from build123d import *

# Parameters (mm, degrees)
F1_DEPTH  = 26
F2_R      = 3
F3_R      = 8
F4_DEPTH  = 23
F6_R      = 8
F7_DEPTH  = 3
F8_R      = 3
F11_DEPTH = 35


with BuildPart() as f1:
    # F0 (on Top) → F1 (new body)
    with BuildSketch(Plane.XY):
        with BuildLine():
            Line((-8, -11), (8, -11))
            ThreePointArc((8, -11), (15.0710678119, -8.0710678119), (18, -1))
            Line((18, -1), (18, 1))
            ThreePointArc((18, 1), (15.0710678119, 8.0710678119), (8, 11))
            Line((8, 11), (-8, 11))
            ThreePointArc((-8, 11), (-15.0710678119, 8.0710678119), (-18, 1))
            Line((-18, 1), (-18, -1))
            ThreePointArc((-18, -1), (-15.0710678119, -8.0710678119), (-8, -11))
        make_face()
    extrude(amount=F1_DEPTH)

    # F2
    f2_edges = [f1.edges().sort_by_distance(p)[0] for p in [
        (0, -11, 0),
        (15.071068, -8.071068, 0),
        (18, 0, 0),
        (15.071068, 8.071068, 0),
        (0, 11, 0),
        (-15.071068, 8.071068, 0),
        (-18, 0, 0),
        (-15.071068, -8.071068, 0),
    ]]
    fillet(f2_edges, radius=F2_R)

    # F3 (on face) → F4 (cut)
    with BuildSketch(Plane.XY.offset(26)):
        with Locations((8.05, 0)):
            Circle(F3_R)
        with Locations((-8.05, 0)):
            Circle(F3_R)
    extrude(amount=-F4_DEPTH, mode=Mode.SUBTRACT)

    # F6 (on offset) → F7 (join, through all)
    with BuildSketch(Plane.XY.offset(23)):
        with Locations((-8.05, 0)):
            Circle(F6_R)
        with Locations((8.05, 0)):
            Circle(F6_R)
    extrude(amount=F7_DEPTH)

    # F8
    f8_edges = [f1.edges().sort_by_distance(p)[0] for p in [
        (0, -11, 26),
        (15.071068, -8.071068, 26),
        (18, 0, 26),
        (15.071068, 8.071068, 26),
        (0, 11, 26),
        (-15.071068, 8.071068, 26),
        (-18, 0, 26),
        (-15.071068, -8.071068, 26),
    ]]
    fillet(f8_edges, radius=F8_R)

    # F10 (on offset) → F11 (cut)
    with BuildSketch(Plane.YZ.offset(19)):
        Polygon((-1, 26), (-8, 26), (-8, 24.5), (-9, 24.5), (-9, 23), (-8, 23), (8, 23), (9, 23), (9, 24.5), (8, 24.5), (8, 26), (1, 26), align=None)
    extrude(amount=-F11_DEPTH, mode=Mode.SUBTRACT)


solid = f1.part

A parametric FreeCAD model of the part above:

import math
import FreeCAD as App
import Part
import Sketcher

V = App.Vector


def edges_at(feature, points):
    """Names of the edges that pass closest to the given points."""
    edges = feature.Shape.Edges
    near = lambda p: min(range(len(edges)), key=lambda i: edges[i].distToShape(Part.Vertex(*p))[0])
    return sorted({f"Edge{near(p) + 1}" for p in points})

doc = App.newDocument("Part")
params = doc.addObject("Spreadsheet::Sheet", "Params")
for row, (alias, value) in enumerate([
    ("sketch1_radius", "10 mm"),
    ("sketch1_width", "16 mm"),
    ("sketch1_height", "2 mm"),
    ("pad1_length", "26 mm"),
    ("fillet_radius", "3 mm"),
    ("sketch2_diameter", "16 mm"),
    ("pocket1_length", "23 mm"),
    ("sketch3_diameter", "16 mm"),
    ("fillet2_radius", "3 mm"),
    ("sketch4_width", "1 mm"),
    ("sketch4_width2", "18 mm"),
    ("sketch4_height", "1.5 mm"),
    ("pocket2_length", "35 mm"),
], start=1):
    params.set(f"A{row}", alias)
    params.set(f"B{row}", "=" + value)
    params.setAlias(f"B{row}", alias)

body = doc.addObject("PartDesign::Body", "Body")

sketch1 = body.newObject("Sketcher::SketchObject", "Sketch")
sketch1.AttachmentSupport = (doc.getObject("XY_Plane"), [""])
sketch1.MapMode = "FlatFace"
sketch1.addGeometry([
    Part.LineSegment(V(-8, -11, 0), V(8, -11, 0)),
    Part.ArcOfCircle(Part.Circle(V(8, -1, 0), V(0, 0, 1), 10), math.radians(-90), math.radians(0)),
    Part.LineSegment(V(18, -1, 0), V(18, 1, 0)),
    Part.ArcOfCircle(Part.Circle(V(8, 1, 0), V(0, 0, 1), 10), math.radians(0), math.radians(90)),
    Part.LineSegment(V(8, 11, 0), V(-8, 11, 0)),
    Part.ArcOfCircle(Part.Circle(V(-8, 1, 0), V(0, 0, 1), 10), math.radians(90), math.radians(180)),
    Part.LineSegment(V(-18, 1, 0), V(-18, -1, 0)),
    Part.ArcOfCircle(Part.Circle(V(-8, -1, 0), V(0, 0, 1), 10), math.radians(180), math.radians(270)),
], False)
sketch1.addConstraint([
    Sketcher.Constraint("Tangent", 0, 2, 1, 1),
    Sketcher.Constraint("Tangent", 1, 2, 2, 1),
    Sketcher.Constraint("Tangent", 2, 2, 3, 1),
    Sketcher.Constraint("Tangent", 3, 2, 4, 1),
    Sketcher.Constraint("Tangent", 4, 2, 5, 1),
    Sketcher.Constraint("Tangent", 5, 2, 6, 1),
    Sketcher.Constraint("Tangent", 6, 2, 7, 1),
    Sketcher.Constraint("Tangent", 7, 2, 0, 1),
    Sketcher.Constraint("Horizontal", 0),
    Sketcher.Constraint("Vertical", 2),
    Sketcher.Constraint("Horizontal", 4),
    Sketcher.Constraint("Vertical", 6),
    Sketcher.Constraint("Equal", 1, 3),
    Sketcher.Constraint("Equal", 3, 5),
    Sketcher.Constraint("Equal", 5, 7),
    Sketcher.Constraint("Symmetric", 1, 3, 5, 3, -1, 1),
    Sketcher.Constraint("Radius", 1, 10.0),
    Sketcher.Constraint("DistanceX", 0, 1, 0, 2, 16.0),
    Sketcher.Constraint("DistanceY", 2, 1, 2, 2, 2.0),
])
sketch1.setExpression("Constraints[16]", "Params.sketch1_radius")
sketch1.setExpression("Constraints[17]", "Params.sketch1_width")
sketch1.setExpression("Constraints[18]", "Params.sketch1_height")
pad1 = body.newObject("PartDesign::Pad", "Pad")
pad1.Profile = sketch1
pad1.setExpression("Length", "Params.pad1_length")
doc.recompute()

fillet = body.newObject("PartDesign::Fillet", "Fillet")
fillet.Base = (pad1, edges_at(pad1, [
    (0, -11, 0),
    (15.071, -8.071, 0),
    (18, 0, 0),
    (15.071, 8.071, 0),
    (0, 11, 0),
    (-15.071, 8.071, 0),
    (-18, 0, 0),
    (-15.071, -8.071, 0),
]))
fillet.setExpression("Radius", "Params.fillet_radius")

sketch2 = body.newObject("Sketcher::SketchObject", "Sketch001")
sketch2.AttachmentSupport = (doc.getObject("XY_Plane"), [""])
sketch2.MapMode = "FlatFace"
sketch2.AttachmentOffset = App.Placement(V(0, 0, 26), App.Rotation())
sketch2.addGeometry([
    Part.Circle(V(8, 0, 0), V(0, 0, 1), 8),
    Part.Circle(V(-8, 0, 0), V(0, 0, 1), 8),
], False)
sketch2.addConstraint([
    Sketcher.Constraint("Equal", 0, 1),
    Sketcher.Constraint("Symmetric", 0, 3, 1, 3, -1, 1),
    Sketcher.Constraint("PointOnObject", 0, 3, -1),
    Sketcher.Constraint("Diameter", 0, 16.0),
    Sketcher.Constraint("DistanceX", 1, 3, 0, 3, 16.1),
])
sketch2.setExpression("Constraints[3]", "Params.sketch2_diameter")
pocket1 = body.newObject("PartDesign::Pocket", "Pocket")
pocket1.Profile = sketch2
pocket1.setExpression("Length", "Params.pocket1_length")

sketch3 = body.newObject("Sketcher::SketchObject", "Sketch002")
sketch3.AttachmentSupport = (doc.getObject("XY_Plane"), [""])
sketch3.MapMode = "FlatFace"
sketch3.AttachmentOffset = App.Placement(V(0, 0, 23), App.Rotation())
sketch3.addGeometry([
    Part.Circle(V(-8, 0, 0), V(0, 0, 1), 8),
    Part.Circle(V(8, 0, 0), V(0, 0, 1), 8),
], False)
sketch3.addConstraint([
    Sketcher.Constraint("Equal", 0, 1),
    Sketcher.Constraint("Symmetric", 0, 3, 1, 3, -1, 1),
    Sketcher.Constraint("PointOnObject", 0, 3, -1),
    Sketcher.Constraint("Diameter", 0, 16.0),
    Sketcher.Constraint("DistanceX", 0, 3, 1, 3, 16.1),
])
sketch3.setExpression("Constraints[3]", "Params.sketch3_diameter")
pad2 = body.newObject("PartDesign::Pad", "Pad001")
pad2.Profile = sketch3
pad2.Type = "UpToLast"
doc.recompute()

fillet2 = body.newObject("PartDesign::Fillet", "Fillet001")
fillet2.Base = (pad2, edges_at(pad2, [
    (0, -11, 26),
    (15.071, -8.071, 26),
    (18, 0, 26),
    (15.071, 8.071, 26),
    (0, 11, 26),
    (-15.071, 8.071, 26),
    (-18, 0, 26),
    (-15.071, -8.071, 26),
]))
fillet2.setExpression("Radius", "Params.fillet2_radius")

sketch4 = body.newObject("Sketcher::SketchObject", "Sketch003")
sketch4.AttachmentSupport = (doc.getObject("YZ_Plane"), [""])
sketch4.MapMode = "FlatFace"
sketch4.AttachmentOffset = App.Placement(V(0, 0, 19), App.Rotation())
sketch4.addGeometry([
    Part.LineSegment(V(-8, 26, 0), V(-8, 24.5, 0)),
    Part.LineSegment(V(-8, 24.5, 0), V(-9, 24.5, 0)),
    Part.LineSegment(V(-9, 24.5, 0), V(-9, 23, 0)),
    Part.LineSegment(V(-9, 23, 0), V(9, 23, 0)),
    Part.LineSegment(V(9, 23, 0), V(9, 24.5, 0)),
    Part.LineSegment(V(9, 24.5, 0), V(8, 24.5, 0)),
    Part.LineSegment(V(8, 24.5, 0), V(8, 26, 0)),
    Part.LineSegment(V(8, 26, 0), V(-8, 26, 0)),
], False)
sketch4.addConstraint([
    Sketcher.Constraint("Coincident", 0, 2, 1, 1),
    Sketcher.Constraint("Coincident", 1, 2, 2, 1),
    Sketcher.Constraint("Coincident", 2, 2, 3, 1),
    Sketcher.Constraint("Coincident", 3, 2, 4, 1),
    Sketcher.Constraint("Coincident", 4, 2, 5, 1),
    Sketcher.Constraint("Coincident", 5, 2, 6, 1),
    Sketcher.Constraint("Coincident", 6, 2, 7, 1),
    Sketcher.Constraint("Coincident", 7, 2, 0, 1),
    Sketcher.Constraint("Vertical", 0),
    Sketcher.Constraint("Horizontal", 1),
    Sketcher.Constraint("Vertical", 2),
    Sketcher.Constraint("Horizontal", 3),
    Sketcher.Constraint("Vertical", 4),
    Sketcher.Constraint("Horizontal", 5),
    Sketcher.Constraint("Vertical", 6),
    Sketcher.Constraint("Horizontal", 7),
    Sketcher.Constraint("Symmetric", 1, 2, 4, 2, -2),
    Sketcher.Constraint("Equal", 1, 5),
    Sketcher.Constraint("Equal", 0, 2),
    Sketcher.Constraint("DistanceX", 1, 2, 1, 1, 1.0),
    Sketcher.Constraint("DistanceX", 3, 1, 3, 2, 18.0),
    Sketcher.Constraint("DistanceY", 0, 2, 0, 1, 1.5),
    Sketcher.Constraint("DistanceY", -1, 1, 2, 2, 23.0),
])
sketch4.setExpression("Constraints[19]", "Params.sketch4_width")
sketch4.setExpression("Constraints[20]", "Params.sketch4_width2")
sketch4.setExpression("Constraints[21]", "Params.sketch4_height")
pocket2 = body.newObject("PartDesign::Pocket", "Pocket001")
pocket2.Profile = sketch4
pocket2.setExpression("Length", "Params.pocket2_length")

doc.recompute()
